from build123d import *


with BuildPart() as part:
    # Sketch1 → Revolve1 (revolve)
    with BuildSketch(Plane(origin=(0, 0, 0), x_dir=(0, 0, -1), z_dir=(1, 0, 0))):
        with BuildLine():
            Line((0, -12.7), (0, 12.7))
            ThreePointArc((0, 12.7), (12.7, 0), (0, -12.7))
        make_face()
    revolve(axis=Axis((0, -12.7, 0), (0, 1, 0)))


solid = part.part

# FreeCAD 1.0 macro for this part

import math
import FreeCAD as App
import Part
import Sketcher
Q = App.Units.Quantity

doc = App.newDocument("Part")
params = doc.addObject("Spreadsheet::Sheet", "Params")
for row, (alias, value) in enumerate([
    ("sketch1_radius", "0.5 in"),
    ("revolution_angle", "360 deg"),
], start=1):
    params.set(f"A{row}", alias)
    params.set(f"B{row}", "=" + value)
    params.setAlias(f"B{row}", alias)

body = doc.addObject("PartDesign::Body", "Body")

sketch1 = doc.addObject("Sketcher::SketchObject", "Sketch")
body.addObject(sketch1)
sketch1.AttachmentSupport = (doc.YZ_Plane, [""])
sketch1.MapMode = "FlatFace"
sketch1.addGeometry([
    Part.LineSegment(App.Vector(13, 0, 0), App.Vector(-13, 0, 0)),
    Part.ArcOfCircle(Part.Circle(App.Vector(0, 0, 0), App.Vector(0, 0, 1), 13), math.radians(180), math.radians(360)),
], False)
sketch1.addConstraint([
    Sketcher.Constraint("Coincident", 0, 1, 1, 2),
    Sketcher.Constraint("Coincident", 1, 1, 0, 2),
    Sketcher.Constraint("Horizontal", 0),
    Sketcher.Constraint("Coincident", 1, 3, -1, 1),
    Sketcher.Constraint("PointOnObject", 0, 1, -1),
    Sketcher.Constraint("Radius", 1, Q("0.5 in")),
])
sketch1.setExpression("Constraints[5]", "Params.sketch1_radius")
revolution = doc.addObject("PartDesign::Revolution", "Revolution")
body.addObject(revolution)
revolution.Profile = sketch1
revolution.ReferenceAxis = (sketch1, ["H_Axis"])
revolution.setExpression("Angle", "Params.revolution_angle")

doc.recompute()
